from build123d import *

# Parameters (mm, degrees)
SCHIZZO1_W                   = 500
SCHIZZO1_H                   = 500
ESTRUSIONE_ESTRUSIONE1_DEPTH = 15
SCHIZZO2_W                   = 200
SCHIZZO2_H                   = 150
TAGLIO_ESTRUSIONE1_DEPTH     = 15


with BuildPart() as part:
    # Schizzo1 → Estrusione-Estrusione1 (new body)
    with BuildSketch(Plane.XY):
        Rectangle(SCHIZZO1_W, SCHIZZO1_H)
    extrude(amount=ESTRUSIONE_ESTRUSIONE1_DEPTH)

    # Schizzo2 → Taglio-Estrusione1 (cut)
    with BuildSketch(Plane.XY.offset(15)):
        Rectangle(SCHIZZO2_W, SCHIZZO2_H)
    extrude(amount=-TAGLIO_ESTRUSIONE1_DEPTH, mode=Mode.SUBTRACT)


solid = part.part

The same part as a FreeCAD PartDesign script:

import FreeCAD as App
import Part
import Sketcher
from FreeCAD import Vector

doc = App.newDocument("Part")
body = doc.addObject("PartDesign::Body", "Body")

# Sketch on XY plane
sketch1 = body.newObject("Sketcher::SketchObject", "Sketch")
sketch1.AttachmentSupport = (doc.getObject("XY_Plane"), [""])
sketch1.MapMode = "FlatFace"
sketch1.addGeometry([
    Part.LineSegment(Vector(-250, 250, 0), Vector(-250, -250, 0)),
    Part.LineSegment(Vector(-250, -250, 0), Vector(250, -250, 0)),
    Part.LineSegment(Vector(250, -250, 0), Vector(250, 250, 0)),
    Part.LineSegment(Vector(250, 250, 0), Vector(-250, 250, 0)),
], False)
sketch1.addConstraint([
    Sketcher.Constraint("Coincident", 0, 2, 1, 1),
    Sketcher.Constraint("Coincident", 1, 2, 2, 1),
    Sketcher.Constraint("Coincident", 2, 2, 3, 1),
    Sketcher.Constraint("Coincident", 3, 2, 0, 1),
    Sketcher.Constraint("Vertical", 0),
    Sketcher.Constraint("Horizontal", 1),
    Sketcher.Constraint("Vertical", 2),
    Sketcher.Constraint("Horizontal", 3),
    Sketcher.Constraint("Symmetric", 0, 2, 2, 2, -1, 1),
    Sketcher.Constraint("Equal", 3, 0),
    Sketcher.Constraint("DistanceX", 1, 1, 1, 2, 500.0),
])
pad1 = body.newObject("PartDesign::Pad", "Pad")
pad1.Profile = sketch1
pad1.Length = 15

# Sketch on XY plane
sketch2 = body.newObject("Sketcher::SketchObject", "Sketch001")
sketch2.AttachmentSupport = (doc.getObject("XY_Plane"), [""])
sketch2.MapMode = "FlatFace"
sketch2.AttachmentOffset = App.Placement(Vector(0, 0, 15), App.Rotation())
sketch2.addGeometry([
    Part.LineSegment(Vector(-100, 75, 0), Vector(-100, -75, 0)),
    Part.LineSegment(Vector(-100, -75, 0), Vector(100, -75, 0)),
    Part.LineSegment(Vector(100, -75, 0), Vector(100, 75, 0)),
    Part.LineSegment(Vector(100, 75, 0), Vector(-100, 75, 0)),
], False)
sketch2.addConstraint([
    Sketcher.Constraint("Coincident", 0, 2, 1, 1),
    Sketcher.Constraint("Coincident", 1, 2, 2, 1),
    Sketcher.Constraint("Coincident", 2, 2, 3, 1),
    Sketcher.Constraint("Coincident", 3, 2, 0, 1),
    Sketcher.Constraint("Vertical", 0),
    Sketcher.Constraint("Horizontal", 1),
    Sketcher.Constraint("Vertical", 2),
    Sketcher.Constraint("Horizontal", 3),
    Sketcher.Constraint("Symmetric", 0, 2, 2, 2, -1, 1),
    Sketcher.Constraint("DistanceX", 1, 1, 1, 2, 200.0),
    Sketcher.Constraint("DistanceY", 0, 2, 0, 1, 150.0),
])
pocket1 = body.newObject("PartDesign::Pocket", "Pocket")
pocket1.Profile = sketch2
pocket1.Length = 15

doc.recompute()
